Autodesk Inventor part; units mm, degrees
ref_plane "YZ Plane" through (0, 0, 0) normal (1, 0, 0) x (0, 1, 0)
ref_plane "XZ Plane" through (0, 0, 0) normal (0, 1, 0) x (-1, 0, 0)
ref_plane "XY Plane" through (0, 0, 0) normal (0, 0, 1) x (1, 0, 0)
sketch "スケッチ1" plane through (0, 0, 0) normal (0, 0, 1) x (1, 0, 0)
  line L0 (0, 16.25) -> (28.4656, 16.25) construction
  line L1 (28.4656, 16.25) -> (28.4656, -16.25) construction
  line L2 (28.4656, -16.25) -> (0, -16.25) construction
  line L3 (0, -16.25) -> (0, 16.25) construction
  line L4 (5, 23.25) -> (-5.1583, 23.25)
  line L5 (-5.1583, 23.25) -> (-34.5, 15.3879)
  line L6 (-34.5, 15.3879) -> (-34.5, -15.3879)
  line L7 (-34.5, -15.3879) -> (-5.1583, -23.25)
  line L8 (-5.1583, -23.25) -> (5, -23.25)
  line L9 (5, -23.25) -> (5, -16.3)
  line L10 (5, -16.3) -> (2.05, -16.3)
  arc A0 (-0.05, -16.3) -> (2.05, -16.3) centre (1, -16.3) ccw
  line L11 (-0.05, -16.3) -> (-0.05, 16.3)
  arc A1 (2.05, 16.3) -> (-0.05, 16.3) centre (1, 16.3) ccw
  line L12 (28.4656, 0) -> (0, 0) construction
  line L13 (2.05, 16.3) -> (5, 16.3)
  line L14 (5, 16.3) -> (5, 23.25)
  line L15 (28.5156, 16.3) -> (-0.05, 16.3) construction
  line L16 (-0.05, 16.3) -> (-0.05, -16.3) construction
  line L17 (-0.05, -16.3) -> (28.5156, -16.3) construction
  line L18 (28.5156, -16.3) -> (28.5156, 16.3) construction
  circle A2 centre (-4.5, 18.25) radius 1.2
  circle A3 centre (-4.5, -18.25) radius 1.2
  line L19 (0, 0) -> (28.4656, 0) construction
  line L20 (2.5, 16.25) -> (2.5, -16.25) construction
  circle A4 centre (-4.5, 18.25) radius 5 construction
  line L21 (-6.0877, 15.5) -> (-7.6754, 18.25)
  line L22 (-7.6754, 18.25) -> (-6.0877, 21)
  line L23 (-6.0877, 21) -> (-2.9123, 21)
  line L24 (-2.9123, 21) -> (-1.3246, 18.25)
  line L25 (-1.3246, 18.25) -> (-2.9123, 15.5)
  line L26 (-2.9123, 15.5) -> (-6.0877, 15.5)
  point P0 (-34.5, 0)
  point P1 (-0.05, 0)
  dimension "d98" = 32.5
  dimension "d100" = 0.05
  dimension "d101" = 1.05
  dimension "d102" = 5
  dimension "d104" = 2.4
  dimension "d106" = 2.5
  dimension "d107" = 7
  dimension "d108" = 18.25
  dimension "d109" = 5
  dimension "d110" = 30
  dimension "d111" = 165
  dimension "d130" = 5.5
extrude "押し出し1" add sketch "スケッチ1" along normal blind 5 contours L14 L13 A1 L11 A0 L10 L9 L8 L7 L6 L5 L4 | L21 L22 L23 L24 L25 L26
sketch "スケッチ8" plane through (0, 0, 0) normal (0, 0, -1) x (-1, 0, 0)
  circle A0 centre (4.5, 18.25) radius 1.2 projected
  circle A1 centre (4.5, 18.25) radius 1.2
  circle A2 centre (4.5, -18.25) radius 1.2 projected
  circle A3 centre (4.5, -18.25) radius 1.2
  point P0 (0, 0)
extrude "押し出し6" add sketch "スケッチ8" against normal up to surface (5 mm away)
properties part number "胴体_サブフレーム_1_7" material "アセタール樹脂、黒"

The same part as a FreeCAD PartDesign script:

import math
import FreeCAD as App
import Part
import Sketcher
Q = App.Units.Quantity

doc = App.newDocument("Part")
body = doc.addObject("PartDesign::Body", "Body")

# Sketch on XY plane
sketch1 = body.newObject("Sketcher::SketchObject", "Sketch")
sketch1.AttachmentSupport = (doc.getObject("XY_Plane"), [""])
sketch1.MapMode = "FlatFace"
sketch1.addGeometry([
    Part.LineSegment(App.Vector(5, 16.3, 0), App.Vector(5, 23.2, 0)),  # 0
    Part.LineSegment(App.Vector(5, 23.2, 0), App.Vector(-5.2, 23.2, 0)),  # 1
    Part.LineSegment(App.Vector(-5.2, 23.2, 0), App.Vector(-34.5, 15.4, 0)),  # 2
    Part.LineSegment(App.Vector(-34.5, 15.4, 0), App.Vector(-34.5, -15.4, 0)),  # 3
    Part.LineSegment(App.Vector(-34.5, -15.4, 0), App.Vector(-5.2, -23.2, 0)),  # 4
    Part.LineSegment(App.Vector(-5.2, -23.2, 0), App.Vector(5, -23.2, 0)),  # 5
    Part.LineSegment(App.Vector(5, -23.2, 0), App.Vector(5, -16.3, 0)),  # 6
    Part.LineSegment(App.Vector(5, -16.3, 0), App.Vector(2, -16.3, 0)),  # 7
    Part.ArcOfCircle(Part.Circle(App.Vector(1, -16.3, 0), App.Vector(0, 0, 1), 1.1), math.radians(180), math.radians(360)),  # 8
    Part.LineSegment(App.Vector(-0.1, -16.3, 0), App.Vector(-0.1, 16.3, 0)),  # 9
    Part.ArcOfCircle(Part.Circle(App.Vector(1, 16.3, 0), App.Vector(0, 0, 1), 1), math.radians(0), math.radians(180)),  # 10
    Part.LineSegment(App.Vector(2, 16.3, 0), App.Vector(5, 16.3, 0)),  # 11
    Part.Circle(App.Vector(-4.5, -18.2, 0), App.Vector(0, 0, 1), 1.2),  # 12
    Part.Circle(App.Vector(-4.5, 18.2, 0), App.Vector(0, 0, 1), 1.2),  # 13
], False)
sketch1.addConstraint([
    Sketcher.Constraint("Coincident", 0, 2, 1, 1),
    Sketcher.Constraint("Coincident", 1, 2, 2, 1),
    Sketcher.Constraint("Coincident", 2, 2, 3, 1),
    Sketcher.Constraint("Coincident", 3, 2, 4, 1),
    Sketcher.Constraint("Coincident", 4, 2, 5, 1),
    Sketcher.Constraint("Coincident", 5, 2, 6, 1),
    Sketcher.Constraint("Coincident", 6, 2, 7, 1),
    Sketcher.Constraint("Coincident", 7, 2, 8, 2),
    Sketcher.Constraint("Tangent", 8, 1, 9, 1),
    Sketcher.Constraint("Tangent", 9, 2, 10, 2),
    Sketcher.Constraint("Coincident", 10, 1, 11, 1),
    Sketcher.Constraint("Coincident", 11, 2, 0, 1),
    Sketcher.Constraint("Vertical", 0),
    Sketcher.Constraint("Horizontal", 1),
    Sketcher.Constraint("Vertical", 3),
    Sketcher.Constraint("Horizontal", 5),
    Sketcher.Constraint("Vertical", 6),
    Sketcher.Constraint("Horizontal", 7),
    Sketcher.Constraint("Vertical", 9),
    Sketcher.Constraint("Horizontal", 11),
    Sketcher.Constraint("Equal", 8, 10),
    Sketcher.Constraint("Equal", 12, 13),
    Sketcher.Constraint("Symmetric", 12, 3, 13, 3, -1),
    Sketcher.Constraint("Symmetric", 1, 2, 4, 2, -1),
    Sketcher.Constraint("Symmetric", 6, 2, 11, 2, -1),
    Sketcher.Constraint("Horizontal", 8, 3, 6, 2),
    Sketcher.Constraint("Horizontal", 9, 2, 10, 1),
    Sketcher.Constraint("Equal", 2, 4),
    Sketcher.Constraint("Diameter", 12, 2.4),
    Sketcher.Constraint("Angle", 2, Q("-165 deg")),
    Sketcher.Constraint("Radius", 8, 1.05),
    Sketcher.Constraint("DistanceX", -1, 1, 0, 2, 5.0),
    Sketcher.Constraint("DistanceY", 13, 3, 0, 2, 5.0),
    Sketcher.Constraint("DistanceX", 2, 2, 13, 3, 30.0),
    Sketcher.Constraint("DistanceX", 12, 3, 8, 3, 5.5),
    Sketcher.Constraint("DistanceY", 12, 3, -1, 1, 18.25),
    Sketcher.Constraint("DistanceX", 8, 1, -1, 1, 0.05),
    Sketcher.Constraint("DistanceY", 9, 1, 9, 2, 32.6),
    Sketcher.Constraint("DistanceX", 1, 2, 1, 1, 10.1583),
])
pad1 = body.newObject("PartDesign::Pad", "Pad")
pad1.Profile = sketch1
pad1.Length = 5

# Sketch on XY plane
sketch2 = body.newObject("Sketcher::SketchObject", "Sketch001")
sketch2.AttachmentSupport = (doc.getObject("XY_Plane"), [""])
sketch2.MapMode = "FlatFace"
sketch2.addGeometry([
    Part.Circle(App.Vector(-4.5, 18.2, 0), App.Vector(0, 0, 1), 1.2),
    Part.Circle(App.Vector(-4.5, -18.2, 0), App.Vector(0, 0, 1), 1.2),
], False)
sketch2.addConstraint([
    Sketcher.Constraint("Equal", 0, 1),
    Sketcher.Constraint("Symmetric", 0, 3, 1, 3, -1),
    Sketcher.Constraint("Diameter", 0, 2.4),
    Sketcher.Constraint("DistanceX", 0, 3, -1, 1, 4.5),
    Sketcher.Constraint("DistanceY", 1, 3, 0, 3, 36.5),
])
pad2 = body.newObject("PartDesign::Pad", "Pad001")
pad2.Profile = sketch2
pad2.Length = 5

doc.recompute()
